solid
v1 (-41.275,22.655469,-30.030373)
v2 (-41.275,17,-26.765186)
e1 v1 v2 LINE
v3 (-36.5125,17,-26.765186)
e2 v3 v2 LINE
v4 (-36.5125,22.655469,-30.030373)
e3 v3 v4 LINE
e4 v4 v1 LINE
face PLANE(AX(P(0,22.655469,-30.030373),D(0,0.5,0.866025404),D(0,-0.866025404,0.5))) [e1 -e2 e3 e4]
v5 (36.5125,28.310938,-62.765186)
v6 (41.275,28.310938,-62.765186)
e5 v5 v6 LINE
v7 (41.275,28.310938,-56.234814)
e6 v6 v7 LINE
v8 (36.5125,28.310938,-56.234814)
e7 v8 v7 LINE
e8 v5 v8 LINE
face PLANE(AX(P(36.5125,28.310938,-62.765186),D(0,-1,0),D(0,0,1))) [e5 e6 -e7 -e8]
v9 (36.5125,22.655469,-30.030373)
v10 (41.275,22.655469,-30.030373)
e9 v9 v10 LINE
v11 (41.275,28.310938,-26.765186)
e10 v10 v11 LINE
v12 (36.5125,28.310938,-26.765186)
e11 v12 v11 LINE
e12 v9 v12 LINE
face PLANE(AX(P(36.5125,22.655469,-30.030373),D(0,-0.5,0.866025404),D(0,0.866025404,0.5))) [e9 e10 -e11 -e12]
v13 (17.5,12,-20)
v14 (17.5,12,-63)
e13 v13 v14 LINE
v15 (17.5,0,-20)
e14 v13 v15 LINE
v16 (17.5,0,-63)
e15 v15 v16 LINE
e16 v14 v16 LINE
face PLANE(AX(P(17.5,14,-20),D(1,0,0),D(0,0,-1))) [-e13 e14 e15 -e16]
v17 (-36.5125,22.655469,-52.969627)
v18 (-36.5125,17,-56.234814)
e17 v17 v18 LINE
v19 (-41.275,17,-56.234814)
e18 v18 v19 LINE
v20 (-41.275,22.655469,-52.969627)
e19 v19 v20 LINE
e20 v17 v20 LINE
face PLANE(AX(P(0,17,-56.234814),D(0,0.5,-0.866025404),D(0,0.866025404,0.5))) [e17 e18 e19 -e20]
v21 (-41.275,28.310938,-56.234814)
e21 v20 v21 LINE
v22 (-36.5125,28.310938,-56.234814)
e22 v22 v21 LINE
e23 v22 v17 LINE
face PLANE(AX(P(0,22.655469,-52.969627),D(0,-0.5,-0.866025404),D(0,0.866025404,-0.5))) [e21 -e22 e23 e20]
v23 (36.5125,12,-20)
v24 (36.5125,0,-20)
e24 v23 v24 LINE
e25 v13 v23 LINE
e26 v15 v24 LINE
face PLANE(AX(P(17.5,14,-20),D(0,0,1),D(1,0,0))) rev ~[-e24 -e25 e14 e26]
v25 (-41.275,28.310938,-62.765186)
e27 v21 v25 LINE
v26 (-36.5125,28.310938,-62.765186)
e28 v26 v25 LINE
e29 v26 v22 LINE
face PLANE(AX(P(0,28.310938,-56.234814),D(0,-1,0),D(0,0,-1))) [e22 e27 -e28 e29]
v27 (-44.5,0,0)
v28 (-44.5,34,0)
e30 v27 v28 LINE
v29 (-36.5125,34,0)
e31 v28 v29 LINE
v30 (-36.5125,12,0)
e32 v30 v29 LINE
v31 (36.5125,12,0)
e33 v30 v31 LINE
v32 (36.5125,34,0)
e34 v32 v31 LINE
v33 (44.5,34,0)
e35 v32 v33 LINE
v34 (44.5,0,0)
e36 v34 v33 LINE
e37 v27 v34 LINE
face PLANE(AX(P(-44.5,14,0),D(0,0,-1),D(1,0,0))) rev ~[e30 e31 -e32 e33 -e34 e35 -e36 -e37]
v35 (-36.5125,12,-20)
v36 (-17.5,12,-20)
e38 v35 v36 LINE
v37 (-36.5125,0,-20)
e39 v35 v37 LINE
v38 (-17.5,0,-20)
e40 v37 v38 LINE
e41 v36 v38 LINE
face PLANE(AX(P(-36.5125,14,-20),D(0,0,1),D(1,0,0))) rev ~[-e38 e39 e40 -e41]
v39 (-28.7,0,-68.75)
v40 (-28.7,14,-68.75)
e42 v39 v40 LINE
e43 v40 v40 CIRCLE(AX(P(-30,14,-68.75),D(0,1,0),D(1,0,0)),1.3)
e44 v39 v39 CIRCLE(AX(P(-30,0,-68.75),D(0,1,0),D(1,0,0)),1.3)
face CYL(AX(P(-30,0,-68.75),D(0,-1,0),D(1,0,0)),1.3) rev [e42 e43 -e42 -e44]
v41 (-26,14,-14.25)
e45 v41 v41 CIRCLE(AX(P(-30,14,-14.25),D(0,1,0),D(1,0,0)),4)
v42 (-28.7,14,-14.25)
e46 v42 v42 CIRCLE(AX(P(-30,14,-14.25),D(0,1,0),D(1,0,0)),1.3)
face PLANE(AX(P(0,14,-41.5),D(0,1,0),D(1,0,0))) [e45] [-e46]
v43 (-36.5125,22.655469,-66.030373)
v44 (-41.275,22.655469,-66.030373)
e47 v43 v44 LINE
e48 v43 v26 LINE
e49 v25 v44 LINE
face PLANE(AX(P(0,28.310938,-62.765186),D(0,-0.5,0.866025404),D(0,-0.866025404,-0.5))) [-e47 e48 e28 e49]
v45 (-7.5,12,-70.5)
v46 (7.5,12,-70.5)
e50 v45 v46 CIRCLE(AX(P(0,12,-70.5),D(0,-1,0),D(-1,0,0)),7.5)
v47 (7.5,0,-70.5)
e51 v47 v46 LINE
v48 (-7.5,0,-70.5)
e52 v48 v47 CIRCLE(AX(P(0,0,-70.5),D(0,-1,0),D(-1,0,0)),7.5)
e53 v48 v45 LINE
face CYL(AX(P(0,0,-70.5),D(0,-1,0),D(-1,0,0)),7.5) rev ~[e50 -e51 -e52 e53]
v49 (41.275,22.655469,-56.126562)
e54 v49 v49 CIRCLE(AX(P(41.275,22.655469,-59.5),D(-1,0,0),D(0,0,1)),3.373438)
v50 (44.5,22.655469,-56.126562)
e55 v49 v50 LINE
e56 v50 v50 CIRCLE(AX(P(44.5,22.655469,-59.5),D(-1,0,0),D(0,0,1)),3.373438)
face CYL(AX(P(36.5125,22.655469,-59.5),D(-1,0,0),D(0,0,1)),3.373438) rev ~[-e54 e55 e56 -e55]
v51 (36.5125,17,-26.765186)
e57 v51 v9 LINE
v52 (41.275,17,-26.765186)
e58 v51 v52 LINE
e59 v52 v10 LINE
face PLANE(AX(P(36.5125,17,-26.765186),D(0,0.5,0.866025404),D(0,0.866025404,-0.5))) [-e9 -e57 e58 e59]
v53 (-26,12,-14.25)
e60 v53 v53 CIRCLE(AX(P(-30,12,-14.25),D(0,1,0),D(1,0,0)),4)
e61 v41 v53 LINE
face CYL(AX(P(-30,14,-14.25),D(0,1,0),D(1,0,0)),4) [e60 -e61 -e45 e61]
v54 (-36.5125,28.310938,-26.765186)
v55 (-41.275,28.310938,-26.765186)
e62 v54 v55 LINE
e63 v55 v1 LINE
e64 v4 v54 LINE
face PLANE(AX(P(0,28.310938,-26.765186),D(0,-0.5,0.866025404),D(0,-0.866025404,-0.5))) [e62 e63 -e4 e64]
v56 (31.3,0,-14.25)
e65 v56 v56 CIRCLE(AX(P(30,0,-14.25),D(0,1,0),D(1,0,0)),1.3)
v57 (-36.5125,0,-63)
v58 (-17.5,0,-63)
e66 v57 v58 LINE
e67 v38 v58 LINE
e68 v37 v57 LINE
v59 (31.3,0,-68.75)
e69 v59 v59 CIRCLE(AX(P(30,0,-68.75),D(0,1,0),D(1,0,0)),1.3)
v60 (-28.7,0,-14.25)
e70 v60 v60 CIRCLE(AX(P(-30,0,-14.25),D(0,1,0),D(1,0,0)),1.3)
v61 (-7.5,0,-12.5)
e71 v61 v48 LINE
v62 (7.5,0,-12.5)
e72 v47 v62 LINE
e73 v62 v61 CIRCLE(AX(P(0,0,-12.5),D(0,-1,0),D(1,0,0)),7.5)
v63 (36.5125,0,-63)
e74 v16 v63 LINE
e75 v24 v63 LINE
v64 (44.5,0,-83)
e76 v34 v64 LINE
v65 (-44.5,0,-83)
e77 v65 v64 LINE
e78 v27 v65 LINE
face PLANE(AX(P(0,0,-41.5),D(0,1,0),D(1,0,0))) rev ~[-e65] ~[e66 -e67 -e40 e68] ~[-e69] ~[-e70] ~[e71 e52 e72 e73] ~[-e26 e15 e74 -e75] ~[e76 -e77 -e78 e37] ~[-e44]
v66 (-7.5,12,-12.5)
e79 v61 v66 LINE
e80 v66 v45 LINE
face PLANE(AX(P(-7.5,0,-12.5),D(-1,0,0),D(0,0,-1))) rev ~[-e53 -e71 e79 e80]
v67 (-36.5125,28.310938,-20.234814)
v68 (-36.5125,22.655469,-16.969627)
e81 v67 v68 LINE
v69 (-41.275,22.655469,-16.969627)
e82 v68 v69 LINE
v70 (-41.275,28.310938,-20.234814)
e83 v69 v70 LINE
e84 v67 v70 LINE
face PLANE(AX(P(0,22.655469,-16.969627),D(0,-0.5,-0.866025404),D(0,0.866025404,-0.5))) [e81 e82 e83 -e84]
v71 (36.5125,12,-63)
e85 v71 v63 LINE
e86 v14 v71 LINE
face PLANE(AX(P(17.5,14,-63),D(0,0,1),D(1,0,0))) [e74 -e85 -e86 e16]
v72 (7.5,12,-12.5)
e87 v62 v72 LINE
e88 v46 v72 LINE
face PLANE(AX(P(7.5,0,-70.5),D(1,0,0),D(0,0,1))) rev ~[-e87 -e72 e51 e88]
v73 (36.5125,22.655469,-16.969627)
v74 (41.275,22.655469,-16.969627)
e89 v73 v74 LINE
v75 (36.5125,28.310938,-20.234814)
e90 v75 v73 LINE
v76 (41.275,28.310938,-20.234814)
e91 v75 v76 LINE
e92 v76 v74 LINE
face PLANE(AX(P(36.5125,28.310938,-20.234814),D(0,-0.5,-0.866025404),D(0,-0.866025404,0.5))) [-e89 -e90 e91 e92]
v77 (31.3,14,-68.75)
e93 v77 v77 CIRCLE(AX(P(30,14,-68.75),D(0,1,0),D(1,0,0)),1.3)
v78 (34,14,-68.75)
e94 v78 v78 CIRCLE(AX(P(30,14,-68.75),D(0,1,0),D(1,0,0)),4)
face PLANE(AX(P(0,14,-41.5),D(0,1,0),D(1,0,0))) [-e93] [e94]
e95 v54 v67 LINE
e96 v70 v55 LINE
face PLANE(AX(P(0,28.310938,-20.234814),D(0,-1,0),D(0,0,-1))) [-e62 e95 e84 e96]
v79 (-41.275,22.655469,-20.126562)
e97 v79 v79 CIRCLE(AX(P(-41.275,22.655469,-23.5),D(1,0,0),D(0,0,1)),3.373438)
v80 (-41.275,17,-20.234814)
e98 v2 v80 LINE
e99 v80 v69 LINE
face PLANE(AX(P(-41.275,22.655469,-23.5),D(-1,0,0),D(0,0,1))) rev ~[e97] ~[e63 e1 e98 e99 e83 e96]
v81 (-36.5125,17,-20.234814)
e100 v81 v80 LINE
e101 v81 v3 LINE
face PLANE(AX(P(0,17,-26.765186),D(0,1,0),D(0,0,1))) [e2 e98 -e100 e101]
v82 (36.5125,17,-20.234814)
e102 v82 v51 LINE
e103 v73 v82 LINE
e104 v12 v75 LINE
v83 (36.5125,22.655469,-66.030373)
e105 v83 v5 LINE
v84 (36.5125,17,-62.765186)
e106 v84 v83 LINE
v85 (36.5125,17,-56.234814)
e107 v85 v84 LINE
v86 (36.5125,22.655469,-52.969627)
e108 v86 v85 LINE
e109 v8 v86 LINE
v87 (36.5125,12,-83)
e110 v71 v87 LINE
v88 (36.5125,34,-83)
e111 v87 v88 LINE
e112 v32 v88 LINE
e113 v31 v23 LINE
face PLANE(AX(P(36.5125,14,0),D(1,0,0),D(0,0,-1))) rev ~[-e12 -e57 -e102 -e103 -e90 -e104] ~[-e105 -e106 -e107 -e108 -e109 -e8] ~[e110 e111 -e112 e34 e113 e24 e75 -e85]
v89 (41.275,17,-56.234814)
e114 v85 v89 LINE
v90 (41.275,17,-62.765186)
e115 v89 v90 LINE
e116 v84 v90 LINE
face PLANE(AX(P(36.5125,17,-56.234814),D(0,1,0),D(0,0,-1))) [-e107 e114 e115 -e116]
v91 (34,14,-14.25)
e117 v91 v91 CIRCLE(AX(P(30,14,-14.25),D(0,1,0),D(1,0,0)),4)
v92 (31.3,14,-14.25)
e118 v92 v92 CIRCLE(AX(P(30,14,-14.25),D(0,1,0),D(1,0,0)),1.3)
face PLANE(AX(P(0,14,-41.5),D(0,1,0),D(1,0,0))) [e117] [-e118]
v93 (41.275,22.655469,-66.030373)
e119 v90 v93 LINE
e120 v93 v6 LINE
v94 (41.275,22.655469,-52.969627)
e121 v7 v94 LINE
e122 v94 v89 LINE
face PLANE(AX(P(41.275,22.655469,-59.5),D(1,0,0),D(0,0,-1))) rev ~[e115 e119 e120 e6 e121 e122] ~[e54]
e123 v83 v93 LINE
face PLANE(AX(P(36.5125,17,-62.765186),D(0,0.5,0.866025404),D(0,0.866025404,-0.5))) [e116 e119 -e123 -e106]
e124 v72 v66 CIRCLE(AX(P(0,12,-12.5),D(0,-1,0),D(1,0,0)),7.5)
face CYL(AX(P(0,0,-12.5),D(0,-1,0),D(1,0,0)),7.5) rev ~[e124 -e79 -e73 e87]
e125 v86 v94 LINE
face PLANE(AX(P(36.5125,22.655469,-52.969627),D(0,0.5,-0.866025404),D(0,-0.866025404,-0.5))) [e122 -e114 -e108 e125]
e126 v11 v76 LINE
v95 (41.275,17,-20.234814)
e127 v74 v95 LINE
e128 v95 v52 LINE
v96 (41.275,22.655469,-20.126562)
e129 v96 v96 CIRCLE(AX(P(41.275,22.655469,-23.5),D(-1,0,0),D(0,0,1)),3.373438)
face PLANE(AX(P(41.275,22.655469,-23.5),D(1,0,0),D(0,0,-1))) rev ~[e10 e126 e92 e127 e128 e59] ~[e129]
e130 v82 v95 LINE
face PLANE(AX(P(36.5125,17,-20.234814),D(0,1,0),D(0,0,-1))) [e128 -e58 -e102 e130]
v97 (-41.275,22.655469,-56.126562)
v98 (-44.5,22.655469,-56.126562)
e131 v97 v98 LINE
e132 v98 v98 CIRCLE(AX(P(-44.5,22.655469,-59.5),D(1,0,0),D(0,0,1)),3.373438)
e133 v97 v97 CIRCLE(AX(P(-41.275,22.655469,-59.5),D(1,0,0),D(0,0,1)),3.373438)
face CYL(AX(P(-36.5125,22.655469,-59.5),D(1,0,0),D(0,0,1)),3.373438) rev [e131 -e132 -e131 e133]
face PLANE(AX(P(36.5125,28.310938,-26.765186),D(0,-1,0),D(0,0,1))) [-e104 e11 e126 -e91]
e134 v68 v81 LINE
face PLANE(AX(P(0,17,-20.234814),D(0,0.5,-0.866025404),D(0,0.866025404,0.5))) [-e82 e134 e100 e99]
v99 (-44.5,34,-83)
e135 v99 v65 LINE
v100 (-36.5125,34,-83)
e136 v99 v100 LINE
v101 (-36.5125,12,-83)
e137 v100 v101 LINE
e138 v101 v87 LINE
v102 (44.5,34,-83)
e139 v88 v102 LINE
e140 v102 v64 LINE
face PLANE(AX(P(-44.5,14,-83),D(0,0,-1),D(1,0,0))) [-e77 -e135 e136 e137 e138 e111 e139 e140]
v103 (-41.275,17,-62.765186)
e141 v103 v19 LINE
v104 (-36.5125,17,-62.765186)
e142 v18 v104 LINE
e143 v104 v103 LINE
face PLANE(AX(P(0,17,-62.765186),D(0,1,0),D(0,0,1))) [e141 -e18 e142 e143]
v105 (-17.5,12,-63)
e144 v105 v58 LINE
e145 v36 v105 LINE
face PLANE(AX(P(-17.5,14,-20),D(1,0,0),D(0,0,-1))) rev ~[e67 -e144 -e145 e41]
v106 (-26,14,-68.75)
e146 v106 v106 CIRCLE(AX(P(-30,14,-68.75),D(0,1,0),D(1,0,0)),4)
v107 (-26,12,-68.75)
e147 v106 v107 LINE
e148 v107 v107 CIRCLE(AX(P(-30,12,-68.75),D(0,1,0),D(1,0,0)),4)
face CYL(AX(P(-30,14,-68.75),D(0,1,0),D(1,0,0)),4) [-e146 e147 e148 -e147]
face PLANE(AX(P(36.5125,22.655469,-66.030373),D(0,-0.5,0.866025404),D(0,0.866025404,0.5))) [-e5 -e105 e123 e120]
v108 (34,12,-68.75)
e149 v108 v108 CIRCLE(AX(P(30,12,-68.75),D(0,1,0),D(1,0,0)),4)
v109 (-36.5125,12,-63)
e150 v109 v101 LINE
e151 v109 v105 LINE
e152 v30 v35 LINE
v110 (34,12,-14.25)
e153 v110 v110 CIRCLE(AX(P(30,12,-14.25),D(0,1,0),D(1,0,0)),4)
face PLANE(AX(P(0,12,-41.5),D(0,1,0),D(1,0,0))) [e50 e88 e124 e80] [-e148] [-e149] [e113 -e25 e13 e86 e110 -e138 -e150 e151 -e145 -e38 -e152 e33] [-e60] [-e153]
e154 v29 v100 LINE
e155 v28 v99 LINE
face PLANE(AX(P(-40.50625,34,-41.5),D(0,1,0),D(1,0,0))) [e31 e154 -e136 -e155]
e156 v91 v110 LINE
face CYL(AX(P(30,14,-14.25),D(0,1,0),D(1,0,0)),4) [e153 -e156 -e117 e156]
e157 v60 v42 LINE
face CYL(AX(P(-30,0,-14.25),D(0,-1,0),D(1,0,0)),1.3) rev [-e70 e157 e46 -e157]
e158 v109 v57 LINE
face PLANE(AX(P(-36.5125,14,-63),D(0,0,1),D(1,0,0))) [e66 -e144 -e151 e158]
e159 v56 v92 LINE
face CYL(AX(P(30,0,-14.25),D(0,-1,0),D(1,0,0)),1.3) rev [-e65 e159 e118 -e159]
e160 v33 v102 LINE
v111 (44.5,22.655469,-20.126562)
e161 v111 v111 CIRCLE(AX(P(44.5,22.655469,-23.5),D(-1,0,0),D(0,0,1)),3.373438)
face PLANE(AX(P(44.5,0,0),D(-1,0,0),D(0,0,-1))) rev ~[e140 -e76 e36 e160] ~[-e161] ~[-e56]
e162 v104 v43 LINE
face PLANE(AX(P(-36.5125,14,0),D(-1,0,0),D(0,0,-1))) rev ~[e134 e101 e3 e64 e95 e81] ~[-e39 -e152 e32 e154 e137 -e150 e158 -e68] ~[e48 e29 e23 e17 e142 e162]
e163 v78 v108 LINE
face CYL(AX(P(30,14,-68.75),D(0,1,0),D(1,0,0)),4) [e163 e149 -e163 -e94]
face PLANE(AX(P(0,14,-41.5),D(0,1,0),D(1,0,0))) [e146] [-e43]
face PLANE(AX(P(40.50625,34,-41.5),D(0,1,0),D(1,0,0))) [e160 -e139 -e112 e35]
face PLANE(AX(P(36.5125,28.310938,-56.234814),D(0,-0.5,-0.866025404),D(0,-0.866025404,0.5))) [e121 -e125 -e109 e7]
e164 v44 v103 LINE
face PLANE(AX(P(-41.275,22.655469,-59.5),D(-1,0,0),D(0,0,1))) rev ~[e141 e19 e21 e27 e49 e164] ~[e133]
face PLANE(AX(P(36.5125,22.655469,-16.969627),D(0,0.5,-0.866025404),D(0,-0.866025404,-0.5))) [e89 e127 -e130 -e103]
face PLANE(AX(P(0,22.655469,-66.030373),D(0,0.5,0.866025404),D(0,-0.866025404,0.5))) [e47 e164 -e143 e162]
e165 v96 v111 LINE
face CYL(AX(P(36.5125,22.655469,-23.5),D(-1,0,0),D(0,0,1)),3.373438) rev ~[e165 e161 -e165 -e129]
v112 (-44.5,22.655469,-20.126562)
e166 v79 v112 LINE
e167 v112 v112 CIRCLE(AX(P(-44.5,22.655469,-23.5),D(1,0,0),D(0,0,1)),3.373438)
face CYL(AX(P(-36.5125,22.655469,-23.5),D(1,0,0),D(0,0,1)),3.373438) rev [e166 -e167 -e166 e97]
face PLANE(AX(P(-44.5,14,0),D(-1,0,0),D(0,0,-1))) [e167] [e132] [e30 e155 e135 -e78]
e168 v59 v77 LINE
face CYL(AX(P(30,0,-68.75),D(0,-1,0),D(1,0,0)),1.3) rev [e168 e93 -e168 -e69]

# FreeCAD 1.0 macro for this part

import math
import FreeCAD as App
import Part
import Sketcher
Q = App.Units.Quantity

doc = App.newDocument("Part")
body = doc.addObject("PartDesign::Body", "Body")

# Sketch on XZ plane
sketch1 = body.newObject("Sketcher::SketchObject", "Sketch")
sketch1.AttachmentSupport = (doc.getObject("XZ_Plane"), [""])
sketch1.MapMode = "FlatFace"
sketch1.addGeometry(Part.LineSegment(App.Vector(-44.5, -83, 0), App.Vector(-44.5, 0, 0)), False)
sketch1.addGeometry(Part.LineSegment(App.Vector(-44.5, 0, 0), App.Vector(44.5, 0, 0)), False)
sketch1.addGeometry(Part.LineSegment(App.Vector(44.5, 0, 0), App.Vector(44.5, -83, 0)), False)
sketch1.addGeometry(Part.LineSegment(App.Vector(44.5, -83, 0), App.Vector(-44.5, -83, 0)), False)
sketch1.addGeometry(Part.Circle(App.Vector(-30, -14.2, 0), App.Vector(0, 0, 1), 1.3), False)
sketch1.addGeometry(Part.Circle(App.Vector(30, -14.2, 0), App.Vector(0, 0, 1), 1.3), False)
sketch1.addGeometry(Part.Circle(App.Vector(-30, -68.8, 0), App.Vector(0, 0, 1), 1.3), False)
sketch1.addGeometry(Part.ArcOfCircle(Part.Circle(App.Vector(0, -12.5, 0), App.Vector(0, 0, 1), 7.5), math.radians(0), math.radians(180)), False)
sketch1.addGeometry(Part.LineSegment(App.Vector(-7.5, -12.5, 0), App.Vector(-7.5, -70.5, 0)), False)
sketch1.addGeometry(Part.ArcOfCircle(Part.Circle(App.Vector(0, -70.5, 0), App.Vector(0, 0, 1), 7.5), math.radians(180), math.radians(360)), False)
sketch1.addGeometry(Part.LineSegment(App.Vector(7.5, -70.5, 0), App.Vector(7.5, -12.5, 0)), False)
sketch1.addGeometry(Part.Circle(App.Vector(30, -68.8, 0), App.Vector(0, 0, 1), 1.3), False)
sketch1.addConstraint(Sketcher.Constraint("Coincident", 0, 2, 1, 1))
sketch1.addConstraint(Sketcher.Constraint("Coincident", 1, 2, 2, 1))
sketch1.addConstraint(Sketcher.Constraint("Coincident", 2, 2, 3, 1))
sketch1.addConstraint(Sketcher.Constraint("Coincident", 3, 2, 0, 1))
sketch1.addConstraint(Sketcher.Constraint("Tangent", 7, 2, 8, 1))
sketch1.addConstraint(Sketcher.Constraint("Tangent", 8, 2, 9, 1))
sketch1.addConstraint(Sketcher.Constraint("Tangent", 9, 2, 10, 1))
sketch1.addConstraint(Sketcher.Constraint("Tangent", 10, 2, 7, 1))
sketch1.addConstraint(Sketcher.Constraint("Vertical", 0))
sketch1.addConstraint(Sketcher.Constraint("Horizontal", 1))
sketch1.addConstraint(Sketcher.Constraint("Vertical", 2))
sketch1.addConstraint(Sketcher.Constraint("Horizontal", 3))
sketch1.addConstraint(Sketcher.Constraint("Vertical", 8))
sketch1.addConstraint(Sketcher.Constraint("Vertical", 10))
sketch1.addConstraint(Sketcher.Constraint("Equal", 4, 5))
sketch1.addConstraint(Sketcher.Constraint("Equal", 5, 6))
sketch1.addConstraint(Sketcher.Constraint("Equal", 6, 11))
sketch1.addConstraint(Sketcher.Constraint("Symmetric", 0, 2, 1, 2, -1, 1))
sketch1.addConstraint(Sketcher.Constraint("Symmetric", 4, 3, 5, 3, -2))
sketch1.addConstraint(Sketcher.Constraint("Symmetric", 6, 3, 11, 3, -2))
sketch1.addConstraint(Sketcher.Constraint("PointOnObject", 7, 3, -2))
sketch1.addConstraint(Sketcher.Constraint("Vertical", 4, 3, 6, 3))
sketch1.addConstraint(Sketcher.Constraint("Diameter", 4, Q("2.6 mm")))
sketch1.addConstraint(Sketcher.Constraint("Radius", 7, Q("7.5 mm")))
sketch1.addConstraint(Sketcher.Constraint("DistanceX", 1, 1, 1, 2, Q("89 mm")))
sketch1.addConstraint(Sketcher.Constraint("DistanceY", 0, 1, 0, 2, Q("83 mm")))
sketch1.addConstraint(Sketcher.Constraint("DistanceY", 8, 2, 8, 1, Q("58 mm")))
sketch1.addConstraint(Sketcher.Constraint("DistanceX", 4, 3, -1, 1, Q("30 mm")))
sketch1.addConstraint(Sketcher.Constraint("DistanceY", 7, 3, -1, 1, Q("12.5 mm")))
sketch1.addConstraint(Sketcher.Constraint("DistanceY", 6, 3, 4, 3, Q("54.5 mm")))
sketch1.addConstraint(Sketcher.Constraint("DistanceY", 4, 3, -1, 1, Q("14.25 mm")))
pad1 = body.newObject("PartDesign::Pad", "Pad")
pad1.Profile = sketch1
pad1.Length = 14
pad1.Reversed = True

# Sketch on XZ plane
sketch2 = body.newObject("Sketcher::SketchObject", "Sketch001")
sketch2.AttachmentSupport = (doc.getObject("XZ_Plane"), [""])
sketch2.MapMode = "FlatFace"
sketch2.AttachmentOffset = App.Placement(App.Vector(0, 0, -14), App.Rotation())
sketch2.addGeometry(Part.LineSegment(App.Vector(-36.5, -83, 0), App.Vector(-36.5, 0, 0)), False)
sketch2.addGeometry(Part.LineSegment(App.Vector(-36.5, 0, 0), App.Vector(36.5, 0, 0)), False)
sketch2.addGeometry(Part.LineSegment(App.Vector(36.5, 0, 0), App.Vector(36.5, -83, 0)), False)
sketch2.addGeometry(Part.LineSegment(App.Vector(36.5, -83, 0), App.Vector(-36.5, -83, 0)), False)
sketch2.addGeometry(Part.Circle(App.Vector(-30, -14.2, 0), App.Vector(0, 0, 1), 4), False)
sketch2.addGeometry(Part.Circle(App.Vector(30, -14.2, 0), App.Vector(0, 0, 1), 4), False)
sketch2.addGeometry(Part.Circle(App.Vector(-30, -68.8, 0), App.Vector(0, 0, 1), 4), False)
sketch2.addGeometry(Part.Circle(App.Vector(30, -68.8, 0), App.Vector(0, 0, 1), 4), False)
sketch2.addConstraint(Sketcher.Constraint("Coincident", 0, 2, 1, 1))
sketch2.addConstraint(Sketcher.Constraint("Coincident", 1, 2, 2, 1))
sketch2.addConstraint(Sketcher.Constraint("Coincident", 2, 2, 3, 1))
sketch2.addConstraint(Sketcher.Constraint("Coincident", 3, 2, 0, 1))
sketch2.addConstraint(Sketcher.Constraint("Vertical", 0))
sketch2.addConstraint(Sketcher.Constraint("Horizontal", 1))
sketch2.addConstraint(Sketcher.Constraint("Vertical", 2))
sketch2.addConstraint(Sketcher.Constraint("Horizontal", 3))
sketch2.addConstraint(Sketcher.Constraint("Equal", 4, 5))
sketch2.addConstraint(Sketcher.Constraint("Equal", 5, 6))
sketch2.addConstraint(Sketcher.Constraint("Equal", 6, 7))
sketch2.addConstraint(Sketcher.Constraint("Symmetric", 0, 2, 1, 2, -1, 1))
sketch2.addConstraint(Sketcher.Constraint("Symmetric", 4, 3, 5, 3, -2))
sketch2.addConstraint(Sketcher.Constraint("Symmetric", 6, 3, 7, 3, -2))
sketch2.addConstraint(Sketcher.Constraint("Vertical", 4, 3, 6, 3))
sketch2.addConstraint(Sketcher.Constraint("Diameter", 4, Q("8 mm")))
sketch2.addConstraint(Sketcher.Constraint("DistanceY", 0, 1, 0, 2, Q("83 mm")))
sketch2.addConstraint(Sketcher.Constraint("DistanceX", 4, 3, -1, 1, Q("30 mm")))
sketch2.addConstraint(Sketcher.Constraint("DistanceY", 6, 3, 4, 3, Q("54.5 mm")))
sketch2.addConstraint(Sketcher.Constraint("DistanceX", 1, 1, 1, 2, Q("73.025 mm")))
sketch2.addConstraint(Sketcher.Constraint("DistanceY", 4, 3, -1, 1, Q("14.25 mm")))
pocket1 = body.newObject("PartDesign::Pocket", "Pocket")
pocket1.Profile = sketch2
pocket1.Length = 2
pocket1.Reversed = True

# Sketch on XZ plane
sketch3 = body.newObject("Sketcher::SketchObject", "Sketch002")
sketch3.AttachmentSupport = (doc.getObject("XZ_Plane"), [""])
sketch3.MapMode = "FlatFace"
sketch3.AttachmentOffset = App.Placement(App.Vector(0, 0, -14), App.Rotation())
sketch3.addGeometry(Part.LineSegment(App.Vector(-44, -83, 0), App.Vector(-44, 0, 0)), False)
sketch3.addGeometry(Part.LineSegment(App.Vector(-44, 0, 0), App.Vector(-37, 0, 0)), False)
sketch3.addGeometry(Part.LineSegment(App.Vector(-37, 0, 0), App.Vector(-37, -83, 0)), False)
sketch3.addGeometry(Part.LineSegment(App.Vector(-37, -83, 0), App.Vector(-44, -83, 0)), False)
sketch3.addGeometry(Part.LineSegment(App.Vector(37, -83, 0), App.Vector(37, 0, 0)), False)
sketch3.addGeometry(Part.LineSegment(App.Vector(37, 0, 0), App.Vector(44, 0, 0)), False)
sketch3.addGeometry(Part.LineSegment(App.Vector(44, 0, 0), App.Vector(44, -83, 0)), False)
sketch3.addGeometry(Part.LineSegment(App.Vector(44, -83, 0), App.Vector(37, -83, 0)), False)
sketch3.addConstraint(Sketcher.Constraint("Coincident", 0, 2, 1, 1))
sketch3.addConstraint(Sketcher.Constraint("Coincident", 1, 2, 2, 1))
sketch3.addConstraint(Sketcher.Constraint("Coincident", 2, 2, 3, 1))
sketch3.addConstraint(Sketcher.Constraint("Coincident", 3, 2, 0, 1))
sketch3.addConstraint(Sketcher.Constraint("Coincident", 4, 2, 5, 1))
sketch3.addConstraint(Sketcher.Constraint("Coincident", 5, 2, 6, 1))
sketch3.addConstraint(Sketcher.Constraint("Coincident", 6, 2, 7, 1))
sketch3.addConstraint(Sketcher.Constraint("Coincident", 7, 2, 4, 1))
sketch3.addConstraint(Sketcher.Constraint("Vertical", 0))
sketch3.addConstraint(Sketcher.Constraint("Horizontal", 1))
sketch3.addConstraint(Sketcher.Constraint("Vertical", 2))
sketch3.addConstraint(Sketcher.Constraint("Horizontal", 3))
sketch3.addConstraint(Sketcher.Constraint("Vertical", 4))
sketch3.addConstraint(Sketcher.Constraint("Horizontal", 5))
sketch3.addConstraint(Sketcher.Constraint("Vertical", 6))
sketch3.addConstraint(Sketcher.Constraint("Horizontal", 7))
sketch3.addConstraint(Sketcher.Constraint("Symmetric", 1, 2, 4, 2, -1, 1))
sketch3.addConstraint(Sketcher.Constraint("Symmetric", 0, 2, 5, 2, -2))
sketch3.addConstraint(Sketcher.Constraint("Horizontal", 3, 2, 6, 2))
sketch3.addConstraint(Sketcher.Constraint("DistanceY", 0, 1, 0, 2, Q("83 mm")))
sketch3.addConstraint(Sketcher.Constraint("DistanceX", 0, 2, 5, 2, Q("89 mm")))
sketch3.addConstraint(Sketcher.Constraint("DistanceX", 1, 1, 1, 2, Q("7.9875 mm")))
pad2 = body.newObject("PartDesign::Pad", "Pad001")
pad2.Profile = sketch3
pad2.Length = 20
pad2.Reversed = True

# Sketch on YZ plane
sketch4 = body.newObject("Sketcher::SketchObject", "Sketch003")
sketch4.AttachmentSupport = (doc.getObject("YZ_Plane"), [""])
sketch4.MapMode = "FlatFace"
sketch4.addGeometry(Part.LineSegment(App.Vector(23, -53, 0), App.Vector(28, -56, 0)), False)
sketch4.addGeometry(Part.LineSegment(App.Vector(28, -56, 0), App.Vector(28, -63, 0)), False)
sketch4.addGeometry(Part.LineSegment(App.Vector(28, -63, 0), App.Vector(23, -66, 0)), False)
sketch4.addGeometry(Part.LineSegment(App.Vector(23, -66, 0), App.Vector(17, -63, 0)), False)
sketch4.addGeometry(Part.LineSegment(App.Vector(17, -63, 0), App.Vector(17, -56, 0)), False)
sketch4.addGeometry(Part.LineSegment(App.Vector(17, -56, 0), App.Vector(23, -53, 0)), False)
sketch4.addGeometry(Part.LineSegment(App.Vector(23, -17, 0), App.Vector(28, -20, 0)), False)
sketch4.addGeometry(Part.LineSegment(App.Vector(28, -20, 0), App.Vector(28, -27, 0)), False)
sketch4.addGeometry(Part.LineSegment(App.Vector(28, -27, 0), App.Vector(23, -30, 0)), False)
sketch4.addGeometry(Part.LineSegment(App.Vector(23, -30, 0), App.Vector(17, -27, 0)), False)
sketch4.addGeometry(Part.LineSegment(App.Vector(17, -27, 0), App.Vector(17, -20, 0)), False)
sketch4.addGeometry(Part.LineSegment(App.Vector(17, -20, 0), App.Vector(23, -17, 0)), False)
sketch4.addConstraint(Sketcher.Constraint("Coincident", 0, 2, 1, 1))
sketch4.addConstraint(Sketcher.Constraint("Coincident", 1, 2, 2, 1))
sketch4.addConstraint(Sketcher.Constraint("Coincident", 2, 2, 3, 1))
sketch4.addConstraint(Sketcher.Constraint("Coincident", 3, 2, 4, 1))
sketch4.addConstraint(Sketcher.Constraint("Coincident", 4, 2, 5, 1))
sketch4.addConstraint(Sketcher.Constraint("Coincident", 5, 2, 0, 1))
sketch4.addConstraint(Sketcher.Constraint("Coincident", 6, 2, 7, 1))
sketch4.addConstraint(Sketcher.Constraint("Coincident", 7, 2, 8, 1))
sketch4.addConstraint(Sketcher.Constraint("Coincident", 8, 2, 9, 1))
sketch4.addConstraint(Sketcher.Constraint("Coincident", 9, 2, 10, 1))
sketch4.addConstraint(Sketcher.Constraint("Coincident", 10, 2, 11, 1))
sketch4.addConstraint(Sketcher.Constraint("Coincident", 11, 2, 6, 1))
sketch4.addConstraint(Sketcher.Constraint("Vertical", 1))
sketch4.addConstraint(Sketcher.Constraint("Vertical", 4))
sketch4.addConstraint(Sketcher.Constraint("Vertical", 7))
sketch4.addConstraint(Sketcher.Constraint("Vertical", 10))
sketch4.addConstraint(Sketcher.Constraint("Parallel", 0, 3))
sketch4.addConstraint(Sketcher.Constraint("Parallel", 2, 5))
sketch4.addConstraint(Sketcher.Constraint("Parallel", 3, 6))
sketch4.addConstraint(Sketcher.Constraint("Parallel", 5, 8))
sketch4.addConstraint(Sketcher.Constraint("Parallel", 6, 9))
sketch4.addConstraint(Sketcher.Constraint("Parallel", 8, 11))
sketch4.addConstraint(Sketcher.Constraint("Horizontal", 1, 2, 3, 2))
sketch4.addConstraint(Sketcher.Constraint("Horizontal", 0, 2, 4, 2))
sketch4.addConstraint(Sketcher.Constraint("Horizontal", 7, 2, 9, 2))
sketch4.addConstraint(Sketcher.Constraint("Horizontal", 6, 2, 10, 2))
sketch4.addConstraint(Sketcher.Constraint("Vertical", 2, 2, 5, 2))
sketch4.addConstraint(Sketcher.Constraint("Vertical", 1, 2, 6, 2))
sketch4.addConstraint(Sketcher.Constraint("Vertical", 5, 2, 8, 2))
sketch4.addConstraint(Sketcher.Constraint("Equal", 4, 7))
sketch4.addConstraint(Sketcher.Constraint("Angle", 0, Q("-30 deg")))
sketch4.addConstraint(Sketcher.Constraint("DistanceX", -1, 1, 3, 2, Q("17 mm")))
sketch4.addConstraint(Sketcher.Constraint("DistanceY", 0, 2, 6, 2, Q("36 mm")))
sketch4.addConstraint(Sketcher.Constraint("DistanceY", 1, 2, 1, 1, Q("6.530373 mm")))
sketch4.addConstraint(Sketcher.Constraint("DistanceX", -1, 1, 2, 2, Q("22.655469 mm")))
sketch4.addConstraint(Sketcher.Constraint("DistanceY", 0, 2, -1, 1, Q("56.234814 mm")))
pocket2 = body.newObject("PartDesign::Pocket", "Pocket001")
pocket2.Profile = sketch4
pocket2.Length = 41.275

# Sketch on YZ plane
sketch5 = body.newObject("Sketcher::SketchObject", "Sketch004")
sketch5.AttachmentSupport = (doc.getObject("YZ_Plane"), [""])
sketch5.MapMode = "FlatFace"
sketch5.AttachmentOffset = App.Placement(App.Vector(0, 0, -36.5125), App.Rotation())
sketch5.addGeometry(Part.Circle(App.Vector(22.7, -59.5, 0), App.Vector(0, 0, 1), 3.4), False)
sketch5.addConstraint(Sketcher.Constraint("DistanceY", 0, 3, -1, 1, Q("59.5 mm")))
sketch5.addConstraint(Sketcher.Constraint("Diameter", 0, Q("6.746875 mm")))
sketch5.addConstraint(Sketcher.Constraint("DistanceX", -1, 1, 0, 3, Q("22.655469 mm")))
pocket3 = body.newObject("PartDesign::Pocket", "Pocket002")
pocket3.Profile = sketch5
pocket3.Length = 7.9875

# Sketch on YZ plane
sketch6 = body.newObject("Sketcher::SketchObject", "Sketch005")
sketch6.AttachmentSupport = (doc.getObject("YZ_Plane"), [""])
sketch6.MapMode = "FlatFace"
sketch6.AttachmentOffset = App.Placement(App.Vector(0, 0, -36.5125), App.Rotation())
sketch6.addGeometry(Part.Circle(App.Vector(22.7, -23.5, 0), App.Vector(0, 0, 1), 3.4), False)
sketch6.addConstraint(Sketcher.Constraint("DistanceY", 0, 3, -1, 1, Q("23.5 mm")))
sketch6.addConstraint(Sketcher.Constraint("Diameter", 0, Q("6.746875 mm")))
sketch6.addConstraint(Sketcher.Constraint("DistanceX", -1, 1, 0, 3, Q("22.655469 mm")))
pocket4 = body.newObject("PartDesign::Pocket", "Pocket003")
pocket4.Profile = sketch6
pocket4.Length = 7.9875

# Sketch on XZ plane
sketch7 = body.newObject("Sketcher::SketchObject", "Sketch006")
sketch7.AttachmentSupport = (doc.getObject("XZ_Plane"), [""])
sketch7.MapMode = "FlatFace"
sketch7.AttachmentOffset = App.Placement(App.Vector(0, 0, -14), App.Rotation())
sketch7.addGeometry(Part.LineSegment(App.Vector(-37, -63, 0), App.Vector(-37, -20, 0)), False)
sketch7.addGeometry(Part.LineSegment(App.Vector(-37, -20, 0), App.Vector(-18, -20, 0)), False)
sketch7.addGeometry(Part.LineSegment(App.Vector(-18, -20, 0), App.Vector(-18, -63, 0)), False)
sketch7.addGeometry(Part.LineSegment(App.Vector(-18, -63, 0), App.Vector(-37, -63, 0)), False)
sketch7.addGeometry(Part.LineSegment(App.Vector(18, -63, 0), App.Vector(18, -20, 0)), False)
sketch7.addGeometry(Part.LineSegment(App.Vector(18, -20, 0), App.Vector(37, -20, 0)), False)
sketch7.addGeometry(Part.LineSegment(App.Vector(37, -20, 0), App.Vector(37, -63, 0)), False)
sketch7.addGeometry(Part.LineSegment(App.Vector(37, -63, 0), App.Vector(18, -63, 0)), False)
sketch7.addConstraint(Sketcher.Constraint("Coincident", 0, 2, 1, 1))
sketch7.addConstraint(Sketcher.Constraint("Coincident", 1, 2, 2, 1))
sketch7.addConstraint(Sketcher.Constraint("Coincident", 2, 2, 3, 1))
sketch7.addConstraint(Sketcher.Constraint("Coincident", 3, 2, 0, 1))
sketch7.addConstraint(Sketcher.Constraint("Coincident", 4, 2, 5, 1))
sketch7.addConstraint(Sketcher.Constraint("Coincident", 5, 2, 6, 1))
sketch7.addConstraint(Sketcher.Constraint("Coincident", 6, 2, 7, 1))
sketch7.addConstraint(Sketcher.Constraint("Coincident", 7, 2, 4, 1))
sketch7.addConstraint(Sketcher.Constraint("Vertical", 0))
sketch7.addConstraint(Sketcher.Constraint("Horizontal", 1))
sketch7.addConstraint(Sketcher.Constraint("Vertical", 2))
sketch7.addConstraint(Sketcher.Constraint("Horizontal", 3))
sketch7.addConstraint(Sketcher.Constraint("Vertical", 4))
sketch7.addConstraint(Sketcher.Constraint("Horizontal", 5))
sketch7.addConstraint(Sketcher.Constraint("Vertical", 6))
sketch7.addConstraint(Sketcher.Constraint("Horizontal", 7))
sketch7.addConstraint(Sketcher.Constraint("Symmetric", 1, 2, 4, 2, -2))
sketch7.addConstraint(Sketcher.Constraint("Symmetric", 3, 2, 6, 2, -2))
sketch7.addConstraint(Sketcher.Constraint("DistanceY", 0, 1, 0, 2, Q("43 mm")))
sketch7.addConstraint(Sketcher.Constraint("DistanceY", 0, 2, -1, 1, Q("20 mm")))
sketch7.addConstraint(Sketcher.Constraint("DistanceX", 1, 2, 4, 2, Q("35 mm")))
sketch7.addConstraint(Sketcher.Constraint("DistanceX", 1, 1, 1, 2, Q("19.0125 mm")))
pocket5 = body.newObject("PartDesign::Pocket", "Pocket004")
pocket5.Profile = sketch7
pocket5.Length = 14
pocket5.Reversed = True

# Sketch on YZ plane
sketch8 = body.newObject("Sketcher::SketchObject", "Sketch007")
sketch8.AttachmentSupport = (doc.getObject("YZ_Plane"), [""])
sketch8.MapMode = "FlatFace"
sketch8.AttachmentOffset = App.Placement(App.Vector(0, 0, 36.5125), App.Rotation())
sketch8.addGeometry(Part.LineSegment(App.Vector(17, -63, 0), App.Vector(17, -56, 0)), False)
sketch8.addGeometry(Part.LineSegment(App.Vector(17, -56, 0), App.Vector(23, -53, 0)), False)
sketch8.addGeometry(Part.LineSegment(App.Vector(23, -53, 0), App.Vector(28, -56, 0)), False)
sketch8.addGeometry(Part.LineSegment(App.Vector(28, -56, 0), App.Vector(28, -63, 0)), False)
sketch8.addGeometry(Part.LineSegment(App.Vector(28, -63, 0), App.Vector(23, -66, 0)), False)
sketch8.addGeometry(Part.LineSegment(App.Vector(23, -66, 0), App.Vector(17, -63, 0)), False)
sketch8.addGeometry(Part.LineSegment(App.Vector(17, -27, 0), App.Vector(17, -20, 0)), False)
sketch8.addGeometry(Part.LineSegment(App.Vector(17, -20, 0), App.Vector(23, -17, 0)), False)
sketch8.addGeometry(Part.LineSegment(App.Vector(23, -17, 0), App.Vector(28, -20, 0)), False)
sketch8.addGeometry(Part.LineSegment(App.Vector(28, -20, 0), App.Vector(28, -27, 0)), False)
sketch8.addGeometry(Part.LineSegment(App.Vector(28, -27, 0), App.Vector(23, -30, 0)), False)
sketch8.addGeometry(Part.LineSegment(App.Vector(23, -30, 0), App.Vector(17, -27, 0)), False)
sketch8.addConstraint(Sketcher.Constraint("Coincident", 0, 2, 1, 1))
sketch8.addConstraint(Sketcher.Constraint("Coincident", 1, 2, 2, 1))
sketch8.addConstraint(Sketcher.Constraint("Coincident", 2, 2, 3, 1))
sketch8.addConstraint(Sketcher.Constraint("Coincident", 3, 2, 4, 1))
sketch8.addConstraint(Sketcher.Constraint("Coincident", 4, 2, 5, 1))
sketch8.addConstraint(Sketcher.Constraint("Coincident", 5, 2, 0, 1))
sketch8.addConstraint(Sketcher.Constraint("Coincident", 6, 2, 7, 1))
sketch8.addConstraint(Sketcher.Constraint("Coincident", 7, 2, 8, 1))
sketch8.addConstraint(Sketcher.Constraint("Coincident", 8, 2, 9, 1))
sketch8.addConstraint(Sketcher.Constraint("Coincident", 9, 2, 10, 1))
sketch8.addConstraint(Sketcher.Constraint("Coincident", 10, 2, 11, 1))
sketch8.addConstraint(Sketcher.Constraint("Coincident", 11, 2, 6, 1))
sketch8.addConstraint(Sketcher.Constraint("Vertical", 0))
sketch8.addConstraint(Sketcher.Constraint("Vertical", 3))
sketch8.addConstraint(Sketcher.Constraint("Vertical", 6))
sketch8.addConstraint(Sketcher.Constraint("Vertical", 9))
sketch8.addConstraint(Sketcher.Constraint("Parallel", 1, 4))
sketch8.addConstraint(Sketcher.Constraint("Parallel", 2, 5))
sketch8.addConstraint(Sketcher.Constraint("Parallel", 4, 7))
sketch8.addConstraint(Sketcher.Constraint("Parallel", 5, 8))
sketch8.addConstraint(Sketcher.Constraint("Parallel", 7, 10))
sketch8.addConstraint(Sketcher.Constraint("Parallel", 8, 11))
sketch8.addConstraint(Sketcher.Constraint("Horizontal", 0, 2, 2, 2))
sketch8.addConstraint(Sketcher.Constraint("Horizontal", 3, 2, 5, 2))
sketch8.addConstraint(Sketcher.Constraint("Horizontal", 6, 2, 8, 2))
sketch8.addConstraint(Sketcher.Constraint("Horizontal", 9, 2, 11, 2))
sketch8.addConstraint(Sketcher.Constraint("Vertical", 1, 2, 4, 2))
sketch8.addConstraint(Sketcher.Constraint("Vertical", 5, 2, 6, 2))
sketch8.addConstraint(Sketcher.Constraint("Vertical", 4, 2, 7, 2))
sketch8.addConstraint(Sketcher.Constraint("Equal", 3, 6))
sketch8.addConstraint(Sketcher.Constraint("Angle", 1, Q("30 deg")))
sketch8.addConstraint(Sketcher.Constraint("DistanceX", -1, 1, 0, 2, Q("17 mm")))
sketch8.addConstraint(Sketcher.Constraint("DistanceY", 0, 2, 6, 2, Q("36 mm")))
sketch8.addConstraint(Sketcher.Constraint("DistanceY", 0, 1, 0, 2, Q("6.530373 mm")))
sketch8.addConstraint(Sketcher.Constraint("DistanceX", -1, 1, 1, 2, Q("22.655469 mm")))
sketch8.addConstraint(Sketcher.Constraint("DistanceY", 0, 2, -1, 1, Q("56.234814 mm")))
pocket6 = body.newObject("PartDesign::Pocket", "Pocket005")
pocket6.Profile = sketch8
pocket6.Length = 4.7625
pocket6.Reversed = True

# Sketch on YZ plane
sketch9 = body.newObject("Sketcher::SketchObject", "Sketch008")
sketch9.AttachmentSupport = (doc.getObject("YZ_Plane"), [""])
sketch9.MapMode = "FlatFace"
sketch9.AttachmentOffset = App.Placement(App.Vector(0, 0, 36.5125), App.Rotation())
sketch9.addGeometry(Part.Circle(App.Vector(22.7, -59.5, 0), App.Vector(0, 0, 1), 3.4), False)
sketch9.addGeometry(Part.Circle(App.Vector(22.7, -23.5, 0), App.Vector(0, 0, 1), 3.4), False)
sketch9.addConstraint(Sketcher.Constraint("Equal", 0, 1))
sketch9.addConstraint(Sketcher.Constraint("Vertical", 0, 3, 1, 3))
sketch9.addConstraint(Sketcher.Constraint("DistanceY", 0, 3, 1, 3, Q("36 mm")))
sketch9.addConstraint(Sketcher.Constraint("DistanceY", 0, 3, -1, 1, Q("59.5 mm")))
sketch9.addConstraint(Sketcher.Constraint("Diameter", 0, Q("6.746875 mm")))
sketch9.addConstraint(Sketcher.Constraint("DistanceX", -1, 1, 0, 3, Q("22.655469 mm")))
pocket7 = body.newObject("PartDesign::Pocket", "Pocket006")
pocket7.Profile = sketch9
pocket7.Length = 7.9875
pocket7.Reversed = True

doc.recompute()
